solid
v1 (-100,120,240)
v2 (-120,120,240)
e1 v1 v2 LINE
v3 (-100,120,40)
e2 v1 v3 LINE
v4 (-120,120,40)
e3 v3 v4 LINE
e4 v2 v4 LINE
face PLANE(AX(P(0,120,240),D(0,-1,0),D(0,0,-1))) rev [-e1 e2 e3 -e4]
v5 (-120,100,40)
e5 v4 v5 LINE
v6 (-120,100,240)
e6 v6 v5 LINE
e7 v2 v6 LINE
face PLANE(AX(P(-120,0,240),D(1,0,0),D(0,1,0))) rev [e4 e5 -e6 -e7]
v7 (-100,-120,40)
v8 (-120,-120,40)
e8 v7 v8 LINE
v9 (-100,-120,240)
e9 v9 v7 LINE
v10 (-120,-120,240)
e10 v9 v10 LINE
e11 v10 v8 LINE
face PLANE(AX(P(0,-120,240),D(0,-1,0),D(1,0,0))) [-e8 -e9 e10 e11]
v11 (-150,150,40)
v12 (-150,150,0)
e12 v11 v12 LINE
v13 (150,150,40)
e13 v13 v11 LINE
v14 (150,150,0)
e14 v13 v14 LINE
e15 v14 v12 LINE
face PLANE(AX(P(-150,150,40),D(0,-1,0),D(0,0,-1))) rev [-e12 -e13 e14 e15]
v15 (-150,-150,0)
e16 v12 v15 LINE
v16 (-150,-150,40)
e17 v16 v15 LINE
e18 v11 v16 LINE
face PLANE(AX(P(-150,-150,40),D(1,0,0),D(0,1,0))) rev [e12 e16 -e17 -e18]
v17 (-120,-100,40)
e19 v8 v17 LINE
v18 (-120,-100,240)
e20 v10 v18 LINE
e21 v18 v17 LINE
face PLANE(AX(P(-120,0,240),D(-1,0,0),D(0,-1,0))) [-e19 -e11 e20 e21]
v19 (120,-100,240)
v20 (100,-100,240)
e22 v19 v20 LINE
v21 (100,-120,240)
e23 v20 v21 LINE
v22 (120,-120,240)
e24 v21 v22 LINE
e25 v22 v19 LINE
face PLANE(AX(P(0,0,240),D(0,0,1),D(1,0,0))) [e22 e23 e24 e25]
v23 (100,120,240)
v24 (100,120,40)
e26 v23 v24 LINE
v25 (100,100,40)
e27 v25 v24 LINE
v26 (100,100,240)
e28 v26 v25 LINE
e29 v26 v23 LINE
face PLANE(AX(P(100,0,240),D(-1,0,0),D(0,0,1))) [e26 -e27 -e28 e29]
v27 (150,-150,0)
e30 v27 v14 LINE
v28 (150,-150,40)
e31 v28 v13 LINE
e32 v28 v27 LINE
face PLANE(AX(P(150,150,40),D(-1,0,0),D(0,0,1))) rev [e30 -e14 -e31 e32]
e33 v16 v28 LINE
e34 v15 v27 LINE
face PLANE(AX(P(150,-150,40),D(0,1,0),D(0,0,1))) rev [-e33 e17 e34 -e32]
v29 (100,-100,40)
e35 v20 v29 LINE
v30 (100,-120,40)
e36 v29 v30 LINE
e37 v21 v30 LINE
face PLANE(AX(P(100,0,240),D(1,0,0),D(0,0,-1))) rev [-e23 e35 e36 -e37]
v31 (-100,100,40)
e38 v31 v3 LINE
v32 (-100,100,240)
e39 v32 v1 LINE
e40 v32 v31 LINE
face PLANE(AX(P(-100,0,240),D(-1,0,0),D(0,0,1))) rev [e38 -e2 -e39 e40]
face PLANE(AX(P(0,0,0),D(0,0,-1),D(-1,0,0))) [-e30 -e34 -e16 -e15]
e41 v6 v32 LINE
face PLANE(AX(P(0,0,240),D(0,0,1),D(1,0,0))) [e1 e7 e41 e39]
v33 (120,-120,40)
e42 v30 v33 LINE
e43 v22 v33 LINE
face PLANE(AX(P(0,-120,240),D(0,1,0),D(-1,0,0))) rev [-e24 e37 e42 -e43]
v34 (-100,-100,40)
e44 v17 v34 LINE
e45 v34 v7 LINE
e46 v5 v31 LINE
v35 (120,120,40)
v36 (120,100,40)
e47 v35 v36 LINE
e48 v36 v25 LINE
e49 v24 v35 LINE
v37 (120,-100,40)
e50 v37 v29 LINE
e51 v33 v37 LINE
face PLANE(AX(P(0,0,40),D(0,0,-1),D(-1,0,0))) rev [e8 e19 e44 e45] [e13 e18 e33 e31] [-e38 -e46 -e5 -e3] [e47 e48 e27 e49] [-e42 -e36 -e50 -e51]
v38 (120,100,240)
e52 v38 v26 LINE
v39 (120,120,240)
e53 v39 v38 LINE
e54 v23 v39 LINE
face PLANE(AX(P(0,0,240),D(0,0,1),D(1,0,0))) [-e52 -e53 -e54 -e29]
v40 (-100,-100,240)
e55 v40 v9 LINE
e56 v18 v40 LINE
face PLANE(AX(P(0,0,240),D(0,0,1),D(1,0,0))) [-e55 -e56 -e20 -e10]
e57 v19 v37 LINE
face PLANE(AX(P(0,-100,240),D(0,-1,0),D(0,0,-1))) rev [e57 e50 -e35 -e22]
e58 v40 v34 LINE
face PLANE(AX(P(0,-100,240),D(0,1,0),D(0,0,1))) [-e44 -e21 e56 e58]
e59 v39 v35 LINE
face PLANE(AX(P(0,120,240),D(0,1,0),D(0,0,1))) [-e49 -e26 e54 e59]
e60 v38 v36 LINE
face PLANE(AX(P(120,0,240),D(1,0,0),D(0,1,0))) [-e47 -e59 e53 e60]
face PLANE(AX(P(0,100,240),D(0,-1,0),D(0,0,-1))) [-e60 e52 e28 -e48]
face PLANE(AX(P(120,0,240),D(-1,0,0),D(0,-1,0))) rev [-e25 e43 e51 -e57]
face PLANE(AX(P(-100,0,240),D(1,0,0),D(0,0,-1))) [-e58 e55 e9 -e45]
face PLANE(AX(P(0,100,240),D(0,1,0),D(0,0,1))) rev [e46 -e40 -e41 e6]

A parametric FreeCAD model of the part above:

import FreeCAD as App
import Part
import Sketcher
from FreeCAD import Vector

doc = App.newDocument("Part")
params = doc.addObject("Spreadsheet::Sheet", "Params")
for row, (alias, value) in enumerate([
    ("sketch1_width", "300 mm"),
    ("pad1_length", "40 mm"),
    ("sketch2_width", "20 mm"),
    ("pad2_length", "200 mm"),
], start=1):
    params.set(f"A{row}", alias)
    params.set(f"B{row}", "=" + value)
    params.setAlias(f"B{row}", alias)

body = doc.addObject("PartDesign::Body", "Body")

# Sketch on XY plane
sketch1 = doc.addObject("Sketcher::SketchObject", "Sketch")
body.addObject(sketch1)
sketch1.AttachmentSupport = (doc.XY_Plane, [""])
sketch1.MapMode = "FlatFace"
sketch1.addGeometry([
    Part.LineSegment(Vector(-150, 150, 0), Vector(-150, -150, 0)),
    Part.LineSegment(Vector(-150, -150, 0), Vector(150, -150, 0)),
    Part.LineSegment(Vector(150, -150, 0), Vector(150, 150, 0)),
    Part.LineSegment(Vector(150, 150, 0), Vector(-150, 150, 0)),
], False)
sketch1.addConstraint([
    Sketcher.Constraint("Coincident", 0, 2, 1, 1),
    Sketcher.Constraint("Coincident", 1, 2, 2, 1),
    Sketcher.Constraint("Coincident", 2, 2, 3, 1),
    Sketcher.Constraint("Coincident", 3, 2, 0, 1),
    Sketcher.Constraint("Vertical", 0),
    Sketcher.Constraint("Horizontal", 1),
    Sketcher.Constraint("Vertical", 2),
    Sketcher.Constraint("Horizontal", 3),
    Sketcher.Constraint("Symmetric", 0, 2, 2, 2, -1, 1),
    Sketcher.Constraint("Equal", 3, 0),
    Sketcher.Constraint("DistanceX", 1, 1, 1, 2, 300.0),
])
sketch1.setExpression("Constraints[10]", "Params.sketch1_width")
pad1 = doc.addObject("PartDesign::Pad", "Pad")
body.addObject(pad1)
pad1.Profile = sketch1
pad1.setExpression("Length", "Params.pad1_length")

# Sketch on XY plane
sketch2 = doc.addObject("Sketcher::SketchObject", "Sketch001")
body.addObject(sketch2)
sketch2.AttachmentSupport = (doc.XY_Plane, [""])
sketch2.MapMode = "FlatFace"
sketch2.AttachmentOffset = App.Placement(Vector(0, 0, 40), App.Rotation())
sketch2.addGeometry([
    Part.LineSegment(Vector(100, 120, 0), Vector(100, 100, 0)),  # 0
    Part.LineSegment(Vector(100, 100, 0), Vector(120, 100, 0)),  # 1
    Part.LineSegment(Vector(120, 100, 0), Vector(120, 120, 0)),  # 2
    Part.LineSegment(Vector(120, 120, 0), Vector(100, 120, 0)),  # 3
    Part.LineSegment(Vector(-120, 120, 0), Vector(-120, 100, 0)),  # 4
    Part.LineSegment(Vector(-120, 100, 0), Vector(-100, 100, 0)),  # 5
    Part.LineSegment(Vector(-100, 100, 0), Vector(-100, 120, 0)),  # 6
    Part.LineSegment(Vector(-100, 120, 0), Vector(-120, 120, 0)),  # 7
    Part.LineSegment(Vector(-120, -100, 0), Vector(-120, -120, 0)),  # 8
    Part.LineSegment(Vector(-120, -120, 0), Vector(-100, -120, 0)),  # 9
    Part.LineSegment(Vector(-100, -120, 0), Vector(-100, -100, 0)),  # 10
    Part.LineSegment(Vector(-100, -100, 0), Vector(-120, -100, 0)),  # 11
    Part.LineSegment(Vector(100, -100, 0), Vector(100, -120, 0)),  # 12
    Part.LineSegment(Vector(100, -120, 0), Vector(120, -120, 0)),  # 13
    Part.LineSegment(Vector(120, -120, 0), Vector(120, -100, 0)),  # 14
    Part.LineSegment(Vector(120, -100, 0), Vector(100, -100, 0)),  # 15
], False)
sketch2.addConstraint([
    Sketcher.Constraint("Coincident", 0, 2, 1, 1),
    Sketcher.Constraint("Coincident", 1, 2, 2, 1),
    Sketcher.Constraint("Coincident", 2, 2, 3, 1),
    Sketcher.Constraint("Coincident", 3, 2, 0, 1),
    Sketcher.Constraint("Coincident", 4, 2, 5, 1),
    Sketcher.Constraint("Coincident", 5, 2, 6, 1),
    Sketcher.Constraint("Coincident", 6, 2, 7, 1),
    Sketcher.Constraint("Coincident", 7, 2, 4, 1),
    Sketcher.Constraint("Coincident", 8, 2, 9, 1),
    Sketcher.Constraint("Coincident", 9, 2, 10, 1),
    Sketcher.Constraint("Coincident", 10, 2, 11, 1),
    Sketcher.Constraint("Coincident", 11, 2, 8, 1),
    Sketcher.Constraint("Coincident", 12, 2, 13, 1),
    Sketcher.Constraint("Coincident", 13, 2, 14, 1),
    Sketcher.Constraint("Coincident", 14, 2, 15, 1),
    Sketcher.Constraint("Coincident", 15, 2, 12, 1),
    Sketcher.Constraint("Vertical", 0),
    Sketcher.Constraint("Horizontal", 1),
    Sketcher.Constraint("Vertical", 2),
    Sketcher.Constraint("Horizontal", 3),
    Sketcher.Constraint("Vertical", 4),
    Sketcher.Constraint("Horizontal", 5),
    Sketcher.Constraint("Vertical", 6),
    Sketcher.Constraint("Horizontal", 7),
    Sketcher.Constraint("Vertical", 8),
    Sketcher.Constraint("Horizontal", 9),
    Sketcher.Constraint("Vertical", 10),
    Sketcher.Constraint("Horizontal", 11),
    Sketcher.Constraint("Vertical", 12),
    Sketcher.Constraint("Horizontal", 13),
    Sketcher.Constraint("Vertical", 14),
    Sketcher.Constraint("Horizontal", 15),
    Sketcher.Constraint("Symmetric", 2, 2, 8, 2, -1, 1),
    Sketcher.Constraint("Symmetric", 0, 2, 10, 2, -1, 1),
    Sketcher.Constraint("Symmetric", 6, 2, 12, 2, -1, 1),
    Sketcher.Constraint("Symmetric", 4, 2, 14, 2, -1, 1),
    Sketcher.Constraint("Symmetric", 1, 2, 4, 2, -2),
    Sketcher.Constraint("Symmetric", 3, 2, 6, 2, -2),
    Sketcher.Constraint("Equal", 15, 0),
    Sketcher.Constraint("DistanceX", 1, 1, 1, 2, 20.0),
    Sketcher.Constraint("DistanceX", -1, 1, 0, 2, 100.0),
    Sketcher.Constraint("DistanceY", -1, 1, 0, 2, 100.0),
])
sketch2.setExpression("Constraints[39]", "Params.sketch2_width")
pad2 = doc.addObject("PartDesign::Pad", "Pad001")
body.addObject(pad2)
pad2.Profile = sketch2
pad2.setExpression("Length", "Params.pad2_length")

doc.recompute()
